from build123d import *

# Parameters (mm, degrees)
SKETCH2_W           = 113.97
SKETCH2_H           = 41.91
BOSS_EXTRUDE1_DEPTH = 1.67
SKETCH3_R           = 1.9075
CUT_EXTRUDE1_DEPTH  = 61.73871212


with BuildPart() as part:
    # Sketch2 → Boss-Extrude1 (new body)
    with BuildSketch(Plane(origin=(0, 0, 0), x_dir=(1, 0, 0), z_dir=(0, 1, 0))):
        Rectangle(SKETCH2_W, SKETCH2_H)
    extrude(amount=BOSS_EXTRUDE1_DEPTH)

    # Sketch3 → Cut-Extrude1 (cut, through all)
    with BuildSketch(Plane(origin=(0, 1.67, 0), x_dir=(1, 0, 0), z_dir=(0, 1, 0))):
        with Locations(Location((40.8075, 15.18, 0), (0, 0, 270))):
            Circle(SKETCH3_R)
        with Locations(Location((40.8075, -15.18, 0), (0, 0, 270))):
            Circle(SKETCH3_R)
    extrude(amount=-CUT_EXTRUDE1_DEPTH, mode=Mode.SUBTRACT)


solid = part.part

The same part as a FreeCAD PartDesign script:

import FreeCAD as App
import Part
import Sketcher
from FreeCAD import Vector
Q = App.Units.Quantity


def add_polygon(sketch, points):
    """Adds a closed chain of lines whose ends are joined by coincident constraints."""
    first, n = sketch.GeometryCount, len(points)
    for a, b in zip(points, points[1:] + points[:1]):
        sketch.addGeometry(Part.LineSegment(App.Vector(*a, 0), App.Vector(*b, 0)), False)
    for i in range(n):
        sketch.addConstraint(Sketcher.Constraint("Coincident", first + i, 2, first + (i + 1) % n, 1))

doc = App.newDocument("Part")
body = doc.addObject("PartDesign::Body", "Body")

sketch1 = body.newObject("Sketcher::SketchObject", "Sketch")
sketch1.AttachmentSupport = (doc.getObject("XZ_Plane"), [""])
sketch1.MapMode = "FlatFace"
add_polygon(sketch1, [(-57, -21), (-57, 21), (57, 21), (57, -21)])
sketch1.addConstraint(Sketcher.Constraint("Vertical", 0))
sketch1.addConstraint(Sketcher.Constraint("Horizontal", 1))
sketch1.addConstraint(Sketcher.Constraint("Vertical", 2))
sketch1.addConstraint(Sketcher.Constraint("Horizontal", 3))
sketch1.addConstraint(Sketcher.Constraint("Symmetric", 0, 2, 2, 2, -1, 1))
sketch1.addConstraint(Sketcher.Constraint("DistanceY", 0, 1, 0, 2, Q("1.65 in")))
sketch1.addConstraint(Sketcher.Constraint("DistanceX", 1, 1, 1, 2, 113.97))
pad1 = body.newObject("PartDesign::Pad", "Pad")
pad1.Profile = sketch1
pad1.Length = 1.67
pad1.Reversed = True

sketch2 = body.newObject("Sketcher::SketchObject", "Sketch001")
sketch2.AttachmentSupport = (doc.getObject("XZ_Plane"), [""])
sketch2.MapMode = "FlatFace"
sketch2.AttachmentOffset = App.Placement(Vector(0, 0, -1.67), App.Rotation())
sketch2.addGeometry(Part.Circle(Vector(40.8, -15.2, 0), Vector(0, 0, 1), 1.9), False)
sketch2.addGeometry(Part.Circle(Vector(40.8, 15.2, 0), Vector(0, 0, 1), 1.9), False)
sketch2.addConstraint(Sketcher.Constraint("Equal", 0, 1))
sketch2.addConstraint(Sketcher.Constraint("Symmetric", 0, 3, 1, 3, -1))
sketch2.addConstraint(Sketcher.Constraint("Diameter", 0, 3.815))
sketch2.addConstraint(Sketcher.Constraint("DistanceX", -1, 1, 0, 3, 40.8075))
sketch2.addConstraint(Sketcher.Constraint("DistanceY", 0, 3, -1, 1, 15.18))
pocket1 = body.newObject("PartDesign::Pocket", "Pocket")
pocket1.Profile = sketch2
pocket1.Type = "ThroughAll"
pocket1.Reversed = True

doc.recompute()
